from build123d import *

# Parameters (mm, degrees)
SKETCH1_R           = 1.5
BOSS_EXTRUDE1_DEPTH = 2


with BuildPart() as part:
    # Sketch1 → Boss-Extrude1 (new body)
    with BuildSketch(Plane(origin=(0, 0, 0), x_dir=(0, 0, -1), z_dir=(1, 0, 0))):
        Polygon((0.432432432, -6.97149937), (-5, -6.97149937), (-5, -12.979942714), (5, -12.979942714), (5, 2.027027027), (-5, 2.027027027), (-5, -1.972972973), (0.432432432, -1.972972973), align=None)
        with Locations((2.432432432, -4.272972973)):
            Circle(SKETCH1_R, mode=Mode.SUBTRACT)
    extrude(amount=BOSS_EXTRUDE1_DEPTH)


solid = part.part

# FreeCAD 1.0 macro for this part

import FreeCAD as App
import Part
import Sketcher
from FreeCAD import Vector

doc = App.newDocument("Part")
body = doc.addObject("PartDesign::Body", "Body")

sketch1 = body.newObject("Sketcher::SketchObject", "Sketch")
sketch1.AttachmentSupport = (doc.getObject("YZ_Plane"), [""])
sketch1.MapMode = "FlatFace"
sketch1.addGeometry(Part.LineSegment(Vector(-6.971499, -0.432432, 0), Vector(-6.971499, 5, 0)), False)
sketch1.addGeometry(Part.LineSegment(Vector(-6.971499, 5, 0), Vector(-12.979943, 5, 0)), False)
sketch1.addGeometry(Part.LineSegment(Vector(-12.979943, 5, 0), Vector(-12.979943, -5, 0)), False)
sketch1.addGeometry(Part.LineSegment(Vector(-12.979943, -5, 0), Vector(2.027027, -5, 0)), False)
sketch1.addGeometry(Part.LineSegment(Vector(2.027027, -5, 0), Vector(2.027027, 5, 0)), False)
sketch1.addGeometry(Part.LineSegment(Vector(2.027027, 5, 0), Vector(-1.972973, 5, 0)), False)
sketch1.addGeometry(Part.LineSegment(Vector(-1.972973, 5, 0), Vector(-1.972973, -0.432432, 0)), False)
sketch1.addGeometry(Part.LineSegment(Vector(-1.972973, -0.432432, 0), Vector(-6.971499, -0.432432, 0)), False)
sketch1.addGeometry(Part.Circle(Vector(-4.272973, -2.432432, 0), Vector(0, 0, 1), 1.5), False)
sketch1.addConstraint(Sketcher.Constraint("Coincident", 0, 2, 1, 1))
sketch1.addConstraint(Sketcher.Constraint("Coincident", 1, 2, 2, 1))
sketch1.addConstraint(Sketcher.Constraint("Coincident", 2, 2, 3, 1))
sketch1.addConstraint(Sketcher.Constraint("Coincident", 3, 2, 4, 1))
sketch1.addConstraint(Sketcher.Constraint("Coincident", 4, 2, 5, 1))
sketch1.addConstraint(Sketcher.Constraint("Coincident", 5, 2, 6, 1))
sketch1.addConstraint(Sketcher.Constraint("Coincident", 6, 2, 7, 1))
sketch1.addConstraint(Sketcher.Constraint("Coincident", 7, 2, 0, 1))
sketch1.addConstraint(Sketcher.Constraint("Vertical", 0))
sketch1.addConstraint(Sketcher.Constraint("Horizontal", 1))
sketch1.addConstraint(Sketcher.Constraint("Vertical", 2))
sketch1.addConstraint(Sketcher.Constraint("Horizontal", 3))
sketch1.addConstraint(Sketcher.Constraint("Vertical", 4))
sketch1.addConstraint(Sketcher.Constraint("Horizontal", 5))
sketch1.addConstraint(Sketcher.Constraint("Vertical", 6))
sketch1.addConstraint(Sketcher.Constraint("Horizontal", 7))
sketch1.addConstraint(Sketcher.Constraint("Horizontal", 1, 2, 4, 2))
sketch1.addConstraint(Sketcher.Constraint("Diameter", 8, 3.0))
sketch1.addConstraint(Sketcher.Constraint("DistanceX", 5, 2, 5, 1, 4.0))
sketch1.addConstraint(Sketcher.Constraint("DistanceY", 2, 2, 2, 1, 10.0))
sketch1.addConstraint(Sketcher.Constraint("DistanceY", -1, 1, 0, 2, 5.0))
sketch1.addConstraint(Sketcher.Constraint("DistanceY", 8, 3, 6, 2, 2.0))
sketch1.addConstraint(Sketcher.Constraint("DistanceX", 8, 3, 3, 2, 6.3))
sketch1.addConstraint(Sketcher.Constraint("DistanceX", 3, 1, 3, 2, 15.00697))
sketch1.addConstraint(Sketcher.Constraint("DistanceX", 0, 2, -1, 1, 6.971499))
sketch1.addConstraint(Sketcher.Constraint("DistanceX", 1, 2, 1, 1, 6.008443))
sketch1.addConstraint(Sketcher.Constraint("DistanceY", 0, 1, 0, 2, 5.432432))
pad1 = body.newObject("PartDesign::Pad", "Pad")
pad1.Profile = sketch1
pad1.Length = 2

doc.recompute()
